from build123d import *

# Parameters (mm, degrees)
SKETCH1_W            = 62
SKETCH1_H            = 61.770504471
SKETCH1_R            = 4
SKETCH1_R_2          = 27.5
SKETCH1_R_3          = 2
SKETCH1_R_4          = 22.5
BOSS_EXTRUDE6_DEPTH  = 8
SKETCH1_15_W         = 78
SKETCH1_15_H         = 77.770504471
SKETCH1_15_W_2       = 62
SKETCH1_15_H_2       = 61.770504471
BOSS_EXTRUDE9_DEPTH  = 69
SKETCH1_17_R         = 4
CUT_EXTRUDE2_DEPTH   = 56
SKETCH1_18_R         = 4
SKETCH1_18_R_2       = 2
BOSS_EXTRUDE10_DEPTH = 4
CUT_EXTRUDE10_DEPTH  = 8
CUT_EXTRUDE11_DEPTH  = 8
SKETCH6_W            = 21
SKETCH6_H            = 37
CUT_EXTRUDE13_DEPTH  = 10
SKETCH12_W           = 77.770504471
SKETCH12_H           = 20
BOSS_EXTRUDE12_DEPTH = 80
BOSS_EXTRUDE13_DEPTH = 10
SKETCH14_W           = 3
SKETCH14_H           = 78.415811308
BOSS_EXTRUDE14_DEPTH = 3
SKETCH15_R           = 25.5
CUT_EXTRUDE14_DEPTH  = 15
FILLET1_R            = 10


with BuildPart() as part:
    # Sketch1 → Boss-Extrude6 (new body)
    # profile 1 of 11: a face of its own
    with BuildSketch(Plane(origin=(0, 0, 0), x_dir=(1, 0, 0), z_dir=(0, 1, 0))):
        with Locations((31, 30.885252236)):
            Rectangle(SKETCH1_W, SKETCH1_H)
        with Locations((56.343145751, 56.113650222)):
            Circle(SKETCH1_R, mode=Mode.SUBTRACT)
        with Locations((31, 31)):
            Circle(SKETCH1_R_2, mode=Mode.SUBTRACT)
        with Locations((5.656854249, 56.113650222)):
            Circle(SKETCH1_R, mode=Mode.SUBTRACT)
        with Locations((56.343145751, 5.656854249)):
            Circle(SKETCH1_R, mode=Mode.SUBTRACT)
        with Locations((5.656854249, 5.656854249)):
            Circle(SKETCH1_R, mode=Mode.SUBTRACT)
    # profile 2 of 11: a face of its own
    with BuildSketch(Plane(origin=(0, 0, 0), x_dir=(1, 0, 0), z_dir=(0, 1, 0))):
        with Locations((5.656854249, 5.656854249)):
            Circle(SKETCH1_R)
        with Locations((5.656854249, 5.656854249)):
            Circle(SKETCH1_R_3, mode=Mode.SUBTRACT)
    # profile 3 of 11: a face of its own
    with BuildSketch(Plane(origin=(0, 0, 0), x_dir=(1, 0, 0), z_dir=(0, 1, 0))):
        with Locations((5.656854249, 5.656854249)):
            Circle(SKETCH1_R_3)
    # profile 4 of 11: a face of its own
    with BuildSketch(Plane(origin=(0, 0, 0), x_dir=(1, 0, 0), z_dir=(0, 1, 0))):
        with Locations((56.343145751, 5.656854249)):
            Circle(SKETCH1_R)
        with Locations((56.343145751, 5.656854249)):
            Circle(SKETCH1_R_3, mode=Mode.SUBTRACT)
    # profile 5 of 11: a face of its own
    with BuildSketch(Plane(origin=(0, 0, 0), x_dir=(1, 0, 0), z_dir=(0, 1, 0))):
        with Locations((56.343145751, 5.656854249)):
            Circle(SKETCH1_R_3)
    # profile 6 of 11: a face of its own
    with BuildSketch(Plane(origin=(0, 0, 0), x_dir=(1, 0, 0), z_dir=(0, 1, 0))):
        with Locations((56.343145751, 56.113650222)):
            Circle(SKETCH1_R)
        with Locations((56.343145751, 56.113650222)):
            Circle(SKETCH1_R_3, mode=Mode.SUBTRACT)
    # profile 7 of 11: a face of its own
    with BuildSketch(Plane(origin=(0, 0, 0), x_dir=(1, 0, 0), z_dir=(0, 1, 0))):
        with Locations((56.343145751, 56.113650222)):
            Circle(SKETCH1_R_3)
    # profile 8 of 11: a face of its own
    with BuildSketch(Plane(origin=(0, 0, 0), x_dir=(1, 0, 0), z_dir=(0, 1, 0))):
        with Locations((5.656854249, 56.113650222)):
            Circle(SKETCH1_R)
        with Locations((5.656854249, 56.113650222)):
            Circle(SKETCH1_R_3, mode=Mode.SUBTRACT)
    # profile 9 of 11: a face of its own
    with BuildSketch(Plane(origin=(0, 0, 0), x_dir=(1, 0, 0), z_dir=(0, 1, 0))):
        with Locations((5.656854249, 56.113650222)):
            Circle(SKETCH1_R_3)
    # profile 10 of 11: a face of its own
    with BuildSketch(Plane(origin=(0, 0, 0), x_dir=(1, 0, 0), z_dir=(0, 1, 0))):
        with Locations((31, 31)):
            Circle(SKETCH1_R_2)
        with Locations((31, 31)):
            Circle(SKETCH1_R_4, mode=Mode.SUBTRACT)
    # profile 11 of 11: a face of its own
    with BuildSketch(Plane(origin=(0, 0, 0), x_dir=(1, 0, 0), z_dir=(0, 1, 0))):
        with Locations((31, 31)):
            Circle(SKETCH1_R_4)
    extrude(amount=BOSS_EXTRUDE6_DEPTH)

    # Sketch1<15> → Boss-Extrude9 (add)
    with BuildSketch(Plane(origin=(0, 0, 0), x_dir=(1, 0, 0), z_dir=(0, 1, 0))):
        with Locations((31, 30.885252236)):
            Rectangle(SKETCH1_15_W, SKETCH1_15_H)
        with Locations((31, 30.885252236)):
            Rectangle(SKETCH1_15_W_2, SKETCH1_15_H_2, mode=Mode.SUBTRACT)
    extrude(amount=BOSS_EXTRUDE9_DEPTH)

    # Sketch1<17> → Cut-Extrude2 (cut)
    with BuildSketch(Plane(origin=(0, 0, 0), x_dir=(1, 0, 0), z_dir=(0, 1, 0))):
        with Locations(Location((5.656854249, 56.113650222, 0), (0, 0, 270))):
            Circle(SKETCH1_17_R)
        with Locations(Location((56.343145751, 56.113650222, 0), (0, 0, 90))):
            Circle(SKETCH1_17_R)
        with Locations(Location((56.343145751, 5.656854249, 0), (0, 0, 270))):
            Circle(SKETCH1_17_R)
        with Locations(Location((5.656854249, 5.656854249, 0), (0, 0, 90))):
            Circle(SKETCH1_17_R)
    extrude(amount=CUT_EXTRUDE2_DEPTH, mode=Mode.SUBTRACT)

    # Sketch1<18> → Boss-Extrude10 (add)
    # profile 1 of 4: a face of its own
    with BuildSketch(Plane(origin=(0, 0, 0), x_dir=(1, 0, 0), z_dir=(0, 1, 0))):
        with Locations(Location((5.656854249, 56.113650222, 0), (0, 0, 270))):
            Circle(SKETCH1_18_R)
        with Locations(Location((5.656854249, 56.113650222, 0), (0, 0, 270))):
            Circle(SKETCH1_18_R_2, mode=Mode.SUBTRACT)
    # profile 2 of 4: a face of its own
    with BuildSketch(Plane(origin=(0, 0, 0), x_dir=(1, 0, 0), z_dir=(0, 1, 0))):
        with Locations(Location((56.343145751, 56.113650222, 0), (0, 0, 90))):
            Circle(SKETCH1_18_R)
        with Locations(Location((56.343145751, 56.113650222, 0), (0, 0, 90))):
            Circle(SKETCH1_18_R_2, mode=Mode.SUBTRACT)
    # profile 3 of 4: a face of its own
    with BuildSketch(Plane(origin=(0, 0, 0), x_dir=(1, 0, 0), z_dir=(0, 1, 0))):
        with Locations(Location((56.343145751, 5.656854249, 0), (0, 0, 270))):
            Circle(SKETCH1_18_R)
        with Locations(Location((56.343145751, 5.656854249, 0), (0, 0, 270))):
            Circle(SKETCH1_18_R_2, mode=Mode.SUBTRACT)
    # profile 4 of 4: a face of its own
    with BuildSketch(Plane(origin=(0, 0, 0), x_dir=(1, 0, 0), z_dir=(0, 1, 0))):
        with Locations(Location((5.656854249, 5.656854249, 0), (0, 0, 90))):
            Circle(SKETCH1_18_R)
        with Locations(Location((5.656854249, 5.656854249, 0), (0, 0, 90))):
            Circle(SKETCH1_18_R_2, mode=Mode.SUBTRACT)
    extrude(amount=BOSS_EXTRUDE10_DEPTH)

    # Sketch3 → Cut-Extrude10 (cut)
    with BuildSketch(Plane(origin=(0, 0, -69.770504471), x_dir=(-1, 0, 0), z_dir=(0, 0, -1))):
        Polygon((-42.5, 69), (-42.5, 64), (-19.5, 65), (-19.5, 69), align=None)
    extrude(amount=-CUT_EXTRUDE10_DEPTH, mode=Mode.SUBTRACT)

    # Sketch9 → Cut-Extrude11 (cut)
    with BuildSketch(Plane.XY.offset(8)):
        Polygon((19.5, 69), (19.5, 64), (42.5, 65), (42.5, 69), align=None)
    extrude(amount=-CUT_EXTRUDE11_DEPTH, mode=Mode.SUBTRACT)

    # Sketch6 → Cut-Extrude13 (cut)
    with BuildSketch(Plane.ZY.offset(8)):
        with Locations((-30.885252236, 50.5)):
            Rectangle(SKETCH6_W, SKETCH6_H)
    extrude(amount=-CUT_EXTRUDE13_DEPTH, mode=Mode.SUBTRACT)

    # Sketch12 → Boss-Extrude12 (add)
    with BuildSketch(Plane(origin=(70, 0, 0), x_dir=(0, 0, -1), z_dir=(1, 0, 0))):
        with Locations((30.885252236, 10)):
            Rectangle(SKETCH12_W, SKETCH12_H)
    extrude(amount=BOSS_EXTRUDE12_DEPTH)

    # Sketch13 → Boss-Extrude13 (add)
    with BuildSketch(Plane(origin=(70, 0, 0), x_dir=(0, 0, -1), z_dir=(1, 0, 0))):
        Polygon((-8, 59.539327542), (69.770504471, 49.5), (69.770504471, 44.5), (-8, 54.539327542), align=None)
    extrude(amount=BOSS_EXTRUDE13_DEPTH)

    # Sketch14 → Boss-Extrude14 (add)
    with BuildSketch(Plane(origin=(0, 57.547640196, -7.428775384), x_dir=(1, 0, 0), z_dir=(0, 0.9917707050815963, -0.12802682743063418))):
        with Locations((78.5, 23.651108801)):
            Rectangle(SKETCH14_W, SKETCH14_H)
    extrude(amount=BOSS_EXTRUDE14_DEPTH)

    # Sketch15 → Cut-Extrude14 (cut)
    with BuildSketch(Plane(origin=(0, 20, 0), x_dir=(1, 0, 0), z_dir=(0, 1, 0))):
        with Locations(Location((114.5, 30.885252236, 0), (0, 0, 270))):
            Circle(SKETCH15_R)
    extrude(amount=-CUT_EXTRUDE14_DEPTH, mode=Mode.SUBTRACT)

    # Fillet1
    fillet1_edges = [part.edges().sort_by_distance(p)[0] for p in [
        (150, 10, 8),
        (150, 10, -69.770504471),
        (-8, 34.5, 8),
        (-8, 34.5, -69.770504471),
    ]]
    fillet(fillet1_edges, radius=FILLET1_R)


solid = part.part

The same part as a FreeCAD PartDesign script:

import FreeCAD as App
import Part
import Sketcher

V = App.Vector


def edges_at(feature, points):
    """Names of the edges that pass closest to the given points."""
    edges = feature.Shape.Edges
    near = lambda p: min(range(len(edges)), key=lambda i: edges[i].distToShape(Part.Vertex(*p))[0])
    return sorted({f"Edge{near(p) + 1}" for p in points})

doc = App.newDocument("Part")
params = doc.addObject("Spreadsheet::Sheet", "Params")
for row, (alias, value) in enumerate([
    ("sketch1_width", "62 mm"),
    ("pad1_length", "8 mm"),
    ("sketch2_width", "78 mm"),
    ("sketch2_width2", "62 mm"),
    ("pad2_length", "69 mm"),
    ("sketch3_diameter", "8 mm"),
    ("pocket1_length", "56 mm"),
    ("sketch4_diameter", "8 mm"),
    ("sketch4_diameter2", "4 mm"),
    ("pad3_length", "4 mm"),
    ("sketch5_width", "23 mm"),
    ("sketch5_height", "5 mm"),
    ("sketch5_height2", "4 mm"),
    ("pocket2_length", "8 mm"),
    ("sketch6_width", "23 mm"),
    ("sketch6_height", "5 mm"),
    ("sketch6_height2", "4 mm"),
    ("pocket3_length", "8 mm"),
    ("sketch7_width", "37 mm"),
    ("sketch7_height", "21 mm"),
    ("pocket4_length", "10 mm"),
    ("sketch8_width", "20 mm"),
    ("pad4_length", "80 mm"),
    ("sketch9_width", "5 mm"),
    ("pad5_length", "10 mm"),
    ("sketch10_width", "3 mm"),
    ("pad6_length", "3 mm"),
    ("sketch11_diameter", "51 mm"),
    ("pocket5_length", "15 mm"),
    ("fillet_radius", "10 mm"),
], start=1):
    params.set(f"A{row}", alias)
    params.set(f"B{row}", "=" + value)
    params.setAlias(f"B{row}", alias)

body = doc.addObject("PartDesign::Body", "Body")

# Sketch on XZ plane
sketch1 = body.newObject("Sketcher::SketchObject", "Sketch")
sketch1.AttachmentSupport = (doc.getObject("XZ_Plane"), [""])
sketch1.MapMode = "FlatFace"
sketch1.addGeometry([
    Part.LineSegment(V(0, -62, 0), V(0, 0, 0)),
    Part.LineSegment(V(0, 0, 0), V(62, 0, 0)),
    Part.LineSegment(V(62, 0, 0), V(62, -62, 0)),
    Part.LineSegment(V(62, -62, 0), V(0, -62, 0)),
], False)
sketch1.addConstraint([
    Sketcher.Constraint("Coincident", 0, 2, 1, 1),
    Sketcher.Constraint("Coincident", 1, 2, 2, 1),
    Sketcher.Constraint("Coincident", 2, 2, 3, 1),
    Sketcher.Constraint("Coincident", 3, 2, 0, 1),
    Sketcher.Constraint("Vertical", 0),
    Sketcher.Constraint("Horizontal", 1),
    Sketcher.Constraint("Vertical", 2),
    Sketcher.Constraint("Horizontal", 3),
    Sketcher.Constraint("Coincident", 0, 2, -1, 1),
    Sketcher.Constraint("DistanceX", 1, 1, 1, 2, 62.0),
    Sketcher.Constraint("DistanceY", 0, 1, 0, 2, 61.770504),
])
sketch1.setExpression("Constraints[9]", "Params.sketch1_width")
pad1 = body.newObject("PartDesign::Pad", "Pad")
pad1.Profile = sketch1
pad1.setExpression("Length", "Params.pad1_length")
pad1.Reversed = True

# Sketch on XZ plane
sketch2 = body.newObject("Sketcher::SketchObject", "Sketch001")
sketch2.AttachmentSupport = (doc.getObject("XZ_Plane"), [""])
sketch2.MapMode = "FlatFace"
sketch2.addGeometry([
    Part.LineSegment(V(-8, -70, 0), V(-8, 8, 0)),  # 0
    Part.LineSegment(V(-8, 8, 0), V(70, 8, 0)),  # 1
    Part.LineSegment(V(70, 8, 0), V(70, -70, 0)),  # 2
    Part.LineSegment(V(70, -70, 0), V(-8, -70, 0)),  # 3
    Part.LineSegment(V(62, 0, 0), V(0, 0, 0)),  # 4
    Part.LineSegment(V(0, 0, 0), V(0, -62, 0)),  # 5
    Part.LineSegment(V(0, -62, 0), V(62, -62, 0)),  # 6
    Part.LineSegment(V(62, -62, 0), V(62, 0, 0)),  # 7
], False)
sketch2.addConstraint([
    Sketcher.Constraint("Coincident", 0, 2, 1, 1),
    Sketcher.Constraint("Coincident", 1, 2, 2, 1),
    Sketcher.Constraint("Coincident", 2, 2, 3, 1),
    Sketcher.Constraint("Coincident", 3, 2, 0, 1),
    Sketcher.Constraint("Coincident", 4, 2, 5, 1),
    Sketcher.Constraint("Coincident", 5, 2, 6, 1),
    Sketcher.Constraint("Coincident", 6, 2, 7, 1),
    Sketcher.Constraint("Coincident", 7, 2, 4, 1),
    Sketcher.Constraint("Vertical", 0),
    Sketcher.Constraint("Horizontal", 1),
    Sketcher.Constraint("Vertical", 2),
    Sketcher.Constraint("Horizontal", 3),
    Sketcher.Constraint("Horizontal", 4),
    Sketcher.Constraint("Vertical", 5),
    Sketcher.Constraint("Horizontal", 6),
    Sketcher.Constraint("Vertical", 7),
    Sketcher.Constraint("Coincident", 4, 2, -1, 1),
    Sketcher.Constraint("DistanceX", 1, 1, 1, 2, 78.0),
    Sketcher.Constraint("DistanceX", 4, 2, 4, 1, 62.0),
    Sketcher.Constraint("DistanceX", 0, 2, -1, 1, 8.0),
    Sketcher.Constraint("DistanceY", -1, 1, 0, 2, 8.0),
    Sketcher.Constraint("DistanceY", 3, 2, 5, 2, 8.0),
    Sketcher.Constraint("DistanceY", 0, 1, 0, 2, 77.770504),
])
sketch2.setExpression("Constraints[17]", "Params.sketch2_width")
sketch2.setExpression("Constraints[18]", "Params.sketch2_width2")
pad2 = body.newObject("PartDesign::Pad", "Pad001")
pad2.Profile = sketch2
pad2.setExpression("Length", "Params.pad2_length")
pad2.Reversed = True

# Sketch on XZ plane
sketch3 = body.newObject("Sketcher::SketchObject", "Sketch002")
sketch3.AttachmentSupport = (doc.getObject("XZ_Plane"), [""])
sketch3.MapMode = "FlatFace"
sketch3.addGeometry([
    Part.Circle(V(5.7, -56.1, 0), V(0, 0, 1), 4),
    Part.Circle(V(56.3, -56.1, 0), V(0, 0, 1), 4),
    Part.Circle(V(56.3, -5.7, 0), V(0, 0, 1), 4),
    Part.Circle(V(5.7, -5.7, 0), V(0, 0, 1), 4),
], False)
sketch3.addConstraint([
    Sketcher.Constraint("Equal", 0, 1),
    Sketcher.Constraint("Equal", 1, 2),
    Sketcher.Constraint("Equal", 2, 3),
    Sketcher.Constraint("Horizontal", 0, 3, 1, 3),
    Sketcher.Constraint("Horizontal", 2, 3, 3, 3),
    Sketcher.Constraint("Vertical", 1, 3, 2, 3),
    Sketcher.Constraint("Vertical", 0, 3, 3, 3),
    Sketcher.Constraint("Diameter", 0, 8.0),
    Sketcher.Constraint("DistanceY", 0, 3, -1, 1, 56.11365),
    Sketcher.Constraint("DistanceX", 0, 3, 1, 3, 50.686292),
    Sketcher.Constraint("DistanceX", -1, 1, 0, 3, 5.656854),
    Sketcher.Constraint("DistanceY", 2, 3, -1, 1, 5.656854),
])
sketch3.setExpression("Constraints[7]", "Params.sketch3_diameter")
pocket1 = body.newObject("PartDesign::Pocket", "Pocket")
pocket1.Profile = sketch3
pocket1.setExpression("Length", "Params.pocket1_length")

# Sketch on XZ plane
sketch4 = body.newObject("Sketcher::SketchObject", "Sketch003")
sketch4.AttachmentSupport = (doc.getObject("XZ_Plane"), [""])
sketch4.MapMode = "FlatFace"
sketch4.addGeometry([
    Part.Circle(V(5.7, -56.1, 0), V(0, 0, 1), 4),  # 0
    Part.Circle(V(5.7, -56.1, 0), V(0, 0, 1), 2),  # 1
    Part.Circle(V(56.3, -56.1, 0), V(0, 0, 1), 4),  # 2
    Part.Circle(V(56.3, -56.1, 0), V(0, 0, 1), 2),  # 3
    Part.Circle(V(56.3, -5.7, 0), V(0, 0, 1), 4),  # 4
    Part.Circle(V(56.3, -5.7, 0), V(0, 0, 1), 2),  # 5
    Part.Circle(V(5.7, -5.7, 0), V(0, 0, 1), 4),  # 6
    Part.Circle(V(5.7, -5.7, 0), V(0, 0, 1), 2),  # 7
], False)
sketch4.addConstraint([
    Sketcher.Constraint("Coincident", 1, 3, 0, 3),
    Sketcher.Constraint("Coincident", 3, 3, 2, 3),
    Sketcher.Constraint("Coincident", 5, 3, 4, 3),
    Sketcher.Constraint("Coincident", 7, 3, 6, 3),
    Sketcher.Constraint("Equal", 0, 2),
    Sketcher.Constraint("Equal", 1, 3),
    Sketcher.Constraint("Equal", 2, 4),
    Sketcher.Constraint("Equal", 3, 5),
    Sketcher.Constraint("Equal", 4, 6),
    Sketcher.Constraint("Equal", 5, 7),
    Sketcher.Constraint("Horizontal", 1, 3, 2, 3),
    Sketcher.Constraint("Horizontal", 5, 3, 6, 3),
    Sketcher.Constraint("Vertical", 3, 3, 4, 3),
    Sketcher.Constraint("Vertical", 1, 3, 6, 3),
    Sketcher.Constraint("Diameter", 0, 8.0),
    Sketcher.Constraint("Diameter", 1, 4.0),
    Sketcher.Constraint("DistanceY", 0, 3, -1, 1, 56.11365),
    Sketcher.Constraint("DistanceX", 0, 3, 2, 3, 50.686292),
    Sketcher.Constraint("DistanceX", -1, 1, 0, 3, 5.656854),
    Sketcher.Constraint("DistanceY", 4, 3, -1, 1, 5.656854),
])
sketch4.setExpression("Constraints[14]", "Params.sketch4_diameter")
sketch4.setExpression("Constraints[15]", "Params.sketch4_diameter2")
pad3 = body.newObject("PartDesign::Pad", "Pad002")
pad3.Profile = sketch4
pad3.setExpression("Length", "Params.pad3_length")
pad3.Reversed = True

# Sketch on XY plane
sketch5 = body.newObject("Sketcher::SketchObject", "Sketch004")
sketch5.AttachmentSupport = (doc.getObject("XY_Plane"), [""])
sketch5.MapMode = "FlatFace"
sketch5.AttachmentOffset = App.Placement(V(0, 0, -69.770504), App.Rotation())
sketch5.addGeometry([
    Part.LineSegment(V(42.5, 69, 0), V(42.5, 64, 0)),
    Part.LineSegment(V(42.5, 64, 0), V(19.5, 65, 0)),
    Part.LineSegment(V(19.5, 65, 0), V(19.5, 69, 0)),
    Part.LineSegment(V(19.5, 69, 0), V(42.5, 69, 0)),
], False)
sketch5.addConstraint([
    Sketcher.Constraint("Coincident", 0, 2, 1, 1),
    Sketcher.Constraint("Coincident", 1, 2, 2, 1),
    Sketcher.Constraint("Coincident", 2, 2, 3, 1),
    Sketcher.Constraint("Coincident", 3, 2, 0, 1),
    Sketcher.Constraint("Vertical", 0),
    Sketcher.Constraint("Vertical", 2),
    Sketcher.Constraint("Horizontal", 3),
    Sketcher.Constraint("DistanceX", 3, 1, 3, 2, 23.0),
    Sketcher.Constraint("DistanceY", 0, 2, 0, 1, 5.0),
    Sketcher.Constraint("DistanceY", 2, 1, 2, 2, 4.0),
    Sketcher.Constraint("DistanceY", -1, 1, 0, 2, 64.0),
    Sketcher.Constraint("DistanceX", -1, 1, 0, 2, 42.5),
])
sketch5.setExpression("Constraints[7]", "Params.sketch5_width")
sketch5.setExpression("Constraints[8]", "Params.sketch5_height")
sketch5.setExpression("Constraints[9]", "Params.sketch5_height2")
pocket2 = body.newObject("PartDesign::Pocket", "Pocket001")
pocket2.Profile = sketch5
pocket2.setExpression("Length", "Params.pocket2_length")
pocket2.Reversed = True

# Sketch on XY plane
sketch6 = body.newObject("Sketcher::SketchObject", "Sketch005")
sketch6.AttachmentSupport = (doc.getObject("XY_Plane"), [""])
sketch6.MapMode = "FlatFace"
sketch6.AttachmentOffset = App.Placement(V(0, 0, 8), App.Rotation())
sketch6.addGeometry([
    Part.LineSegment(V(19.5, 69, 0), V(19.5, 64, 0)),
    Part.LineSegment(V(19.5, 64, 0), V(42.5, 65, 0)),
    Part.LineSegment(V(42.5, 65, 0), V(42.5, 69, 0)),
    Part.LineSegment(V(42.5, 69, 0), V(19.5, 69, 0)),
], False)
sketch6.addConstraint([
    Sketcher.Constraint("Coincident", 0, 2, 1, 1),
    Sketcher.Constraint("Coincident", 1, 2, 2, 1),
    Sketcher.Constraint("Coincident", 2, 2, 3, 1),
    Sketcher.Constraint("Coincident", 3, 2, 0, 1),
    Sketcher.Constraint("Vertical", 0),
    Sketcher.Constraint("Vertical", 2),
    Sketcher.Constraint("Horizontal", 3),
    Sketcher.Constraint("DistanceX", 3, 2, 3, 1, 23.0),
    Sketcher.Constraint("DistanceY", 0, 2, 0, 1, 5.0),
    Sketcher.Constraint("DistanceY", 2, 1, 2, 2, 4.0),
    Sketcher.Constraint("DistanceY", -1, 1, 0, 2, 64.0),
    Sketcher.Constraint("DistanceX", -1, 1, 0, 2, 19.5),
])
sketch6.setExpression("Constraints[7]", "Params.sketch6_width")
sketch6.setExpression("Constraints[8]", "Params.sketch6_height")
sketch6.setExpression("Constraints[9]", "Params.sketch6_height2")
pocket3 = body.newObject("PartDesign::Pocket", "Pocket002")
pocket3.Profile = sketch6
pocket3.setExpression("Length", "Params.pocket3_length")

# Sketch on YZ plane
sketch7 = body.newObject("Sketcher::SketchObject", "Sketch006")
sketch7.AttachmentSupport = (doc.getObject("YZ_Plane"), [""])
sketch7.MapMode = "FlatFace"
sketch7.AttachmentOffset = App.Placement(V(0, 0, -8), App.Rotation())
sketch7.addGeometry([
    Part.LineSegment(V(69, -41, 0), V(32, -41, 0)),
    Part.LineSegment(V(32, -41, 0), V(32, -20, 0)),
    Part.LineSegment(V(32, -20, 0), V(69, -20, 0)),
    Part.LineSegment(V(69, -20, 0), V(69, -41, 0)),
], False)
sketch7.addConstraint([
    Sketcher.Constraint("Coincident", 0, 2, 1, 1),
    Sketcher.Constraint("Coincident", 1, 2, 2, 1),
    Sketcher.Constraint("Coincident", 2, 2, 3, 1),
    Sketcher.Constraint("Coincident", 3, 2, 0, 1),
    Sketcher.Constraint("Horizontal", 0),
    Sketcher.Constraint("Vertical", 1),
    Sketcher.Constraint("Horizontal", 2),
    Sketcher.Constraint("Vertical", 3),
    Sketcher.Constraint("DistanceX", 0, 2, 0, 1, 37.0),
    Sketcher.Constraint("DistanceY", 1, 1, 1, 2, 21.0),
    Sketcher.Constraint("DistanceX", -1, 1, 0, 2, 32.0),
    Sketcher.Constraint("DistanceY", 0, 2, -1, 1, 41.385252),
])
sketch7.setExpression("Constraints[8]", "Params.sketch7_width")
sketch7.setExpression("Constraints[9]", "Params.sketch7_height")
pocket4 = body.newObject("PartDesign::Pocket", "Pocket003")
pocket4.Profile = sketch7
pocket4.setExpression("Length", "Params.pocket4_length")
pocket4.Reversed = True

# Sketch on YZ plane
sketch8 = body.newObject("Sketcher::SketchObject", "Sketch007")
sketch8.AttachmentSupport = (doc.getObject("YZ_Plane"), [""])
sketch8.MapMode = "FlatFace"
sketch8.AttachmentOffset = App.Placement(V(0, 0, 70), App.Rotation())
sketch8.addGeometry([
    Part.LineSegment(V(20, 8, 0), V(0, 8, 0)),
    Part.LineSegment(V(0, 8, 0), V(0, -70, 0)),
    Part.LineSegment(V(0, -70, 0), V(20, -70, 0)),
    Part.LineSegment(V(20, -70, 0), V(20, 8, 0)),
], False)
sketch8.addConstraint([
    Sketcher.Constraint("Coincident", 0, 2, 1, 1),
    Sketcher.Constraint("Coincident", 1, 2, 2, 1),
    Sketcher.Constraint("Coincident", 2, 2, 3, 1),
    Sketcher.Constraint("Coincident", 3, 2, 0, 1),
    Sketcher.Constraint("Horizontal", 0),
    Sketcher.Constraint("Vertical", 1),
    Sketcher.Constraint("Horizontal", 2),
    Sketcher.Constraint("Vertical", 3),
    Sketcher.Constraint("PointOnObject", 0, 2, -2),
    Sketcher.Constraint("DistanceX", 0, 2, 0, 1, 20.0),
    Sketcher.Constraint("DistanceY", -1, 1, 0, 2, 8.0),
    Sketcher.Constraint("DistanceY", 1, 2, 1, 1, 77.770504),
])
sketch8.setExpression("Constraints[9]", "Params.sketch8_width")
pad4 = body.newObject("PartDesign::Pad", "Pad003")
pad4.Profile = sketch8
pad4.setExpression("Length", "Params.pad4_length")

# Sketch on YZ plane
sketch9 = body.newObject("Sketcher::SketchObject", "Sketch008")
sketch9.AttachmentSupport = (doc.getObject("YZ_Plane"), [""])
sketch9.MapMode = "FlatFace"
sketch9.AttachmentOffset = App.Placement(V(0, 0, 70), App.Rotation())
sketch9.addGeometry([
    Part.LineSegment(V(50, -70, 0), V(60, 8, 0)),
    Part.LineSegment(V(60, 8, 0), V(55, 8, 0)),
    Part.LineSegment(V(55, 8, 0), V(44, -70, 0)),
    Part.LineSegment(V(44, -70, 0), V(50, -70, 0)),
], False)
sketch9.addConstraint([
    Sketcher.Constraint("Coincident", 0, 2, 1, 1),
    Sketcher.Constraint("Coincident", 1, 2, 2, 1),
    Sketcher.Constraint("Coincident", 2, 2, 3, 1),
    Sketcher.Constraint("Coincident", 3, 2, 0, 1),
    Sketcher.Constraint("Horizontal", 1),
    Sketcher.Constraint("Horizontal", 3),
    Sketcher.Constraint("Parallel", 0, 2),
    Sketcher.Constraint("DistanceX", 1, 2, 1, 1, 5.0),
    Sketcher.Constraint("DistanceY", -1, 1, 0, 2, 8.0),
    Sketcher.Constraint("DistanceX", -1, 1, 2, 2, 44.5),
    Sketcher.Constraint("Distance", 0, 78.415811),
    Sketcher.Constraint("DistanceX", -1, 1, 0, 2, 59.539328),
])
sketch9.setExpression("Constraints[7]", "Params.sketch9_width")
pad5 = body.newObject("PartDesign::Pad", "Pad004")
pad5.Profile = sketch9
pad5.setExpression("Length", "Params.pad5_length")

# Sketch on an angled plane
sketch10 = body.newObject("Sketcher::SketchObject", "Sketch009")
sketch10.Placement = App.Placement(V(0, 57.54764, -7.428775), App.Rotation(V(1, 0, 0), V(0, -0.128026827, -0.991770705), V(0, 0.991770705, -0.128026827), "ZXY"))
sketch10.addGeometry([
    Part.LineSegment(V(77, 62.9, 0), V(77, -15.6, 0)),
    Part.LineSegment(V(77, -15.6, 0), V(80, -15.6, 0)),
    Part.LineSegment(V(80, -15.6, 0), V(80, 62.9, 0)),
    Part.LineSegment(V(80, 62.9, 0), V(77, 62.9, 0)),
], False)
sketch10.addConstraint([
    Sketcher.Constraint("Coincident", 0, 2, 1, 1),
    Sketcher.Constraint("Coincident", 1, 2, 2, 1),
    Sketcher.Constraint("Coincident", 2, 2, 3, 1),
    Sketcher.Constraint("Coincident", 3, 2, 0, 1),
    Sketcher.Constraint("Vertical", 0),
    Sketcher.Constraint("Horizontal", 1),
    Sketcher.Constraint("Vertical", 2),
    Sketcher.Constraint("Horizontal", 3),
    Sketcher.Constraint("DistanceX", 1, 1, 1, 2, 3.0),
    Sketcher.Constraint("DistanceX", -1, 1, 0, 2, 77.0),
    Sketcher.Constraint("DistanceY", 0, 2, 0, 1, 78.415811),
    Sketcher.Constraint("DistanceY", 0, 2, -1, 1, 15.556797),
])
sketch10.setExpression("Constraints[8]", "Params.sketch10_width")
pad6 = body.newObject("PartDesign::Pad", "Pad005")
pad6.Profile = sketch10
pad6.setExpression("Length", "Params.pad6_length")

# Sketch on XZ plane
sketch11 = body.newObject("Sketcher::SketchObject", "Sketch010")
sketch11.AttachmentSupport = (doc.getObject("XZ_Plane"), [""])
sketch11.MapMode = "FlatFace"
sketch11.AttachmentOffset = App.Placement(V(0, 0, -20), App.Rotation())
sketch11.addGeometry(Part.Circle(V(114, -31, 0), V(0, 0, 1), 26), False)
sketch11.addConstraint([
    Sketcher.Constraint("Diameter", 0, 51.0),
    Sketcher.Constraint("DistanceX", -1, 1, 0, 3, 114.5),
    Sketcher.Constraint("DistanceY", 0, 3, -1, 1, 30.885252),
])
sketch11.setExpression("Constraints[0]", "Params.sketch11_diameter")
pocket5 = body.newObject("PartDesign::Pocket", "Pocket004")
pocket5.Profile = sketch11
pocket5.setExpression("Length", "Params.pocket5_length")
pocket5.Reversed = True
doc.recompute()

fillet = body.newObject("PartDesign::Fillet", "Fillet")
fillet.Base = (pocket5, edges_at(pocket5, [
    (150, 10, 8),
    (150, 10, -69.771),
    (-8, 34.5, 8),
    (-8, 34.5, -69.771),
]))
fillet.setExpression("Radius", "Params.fillet_radius")

doc.recompute()
